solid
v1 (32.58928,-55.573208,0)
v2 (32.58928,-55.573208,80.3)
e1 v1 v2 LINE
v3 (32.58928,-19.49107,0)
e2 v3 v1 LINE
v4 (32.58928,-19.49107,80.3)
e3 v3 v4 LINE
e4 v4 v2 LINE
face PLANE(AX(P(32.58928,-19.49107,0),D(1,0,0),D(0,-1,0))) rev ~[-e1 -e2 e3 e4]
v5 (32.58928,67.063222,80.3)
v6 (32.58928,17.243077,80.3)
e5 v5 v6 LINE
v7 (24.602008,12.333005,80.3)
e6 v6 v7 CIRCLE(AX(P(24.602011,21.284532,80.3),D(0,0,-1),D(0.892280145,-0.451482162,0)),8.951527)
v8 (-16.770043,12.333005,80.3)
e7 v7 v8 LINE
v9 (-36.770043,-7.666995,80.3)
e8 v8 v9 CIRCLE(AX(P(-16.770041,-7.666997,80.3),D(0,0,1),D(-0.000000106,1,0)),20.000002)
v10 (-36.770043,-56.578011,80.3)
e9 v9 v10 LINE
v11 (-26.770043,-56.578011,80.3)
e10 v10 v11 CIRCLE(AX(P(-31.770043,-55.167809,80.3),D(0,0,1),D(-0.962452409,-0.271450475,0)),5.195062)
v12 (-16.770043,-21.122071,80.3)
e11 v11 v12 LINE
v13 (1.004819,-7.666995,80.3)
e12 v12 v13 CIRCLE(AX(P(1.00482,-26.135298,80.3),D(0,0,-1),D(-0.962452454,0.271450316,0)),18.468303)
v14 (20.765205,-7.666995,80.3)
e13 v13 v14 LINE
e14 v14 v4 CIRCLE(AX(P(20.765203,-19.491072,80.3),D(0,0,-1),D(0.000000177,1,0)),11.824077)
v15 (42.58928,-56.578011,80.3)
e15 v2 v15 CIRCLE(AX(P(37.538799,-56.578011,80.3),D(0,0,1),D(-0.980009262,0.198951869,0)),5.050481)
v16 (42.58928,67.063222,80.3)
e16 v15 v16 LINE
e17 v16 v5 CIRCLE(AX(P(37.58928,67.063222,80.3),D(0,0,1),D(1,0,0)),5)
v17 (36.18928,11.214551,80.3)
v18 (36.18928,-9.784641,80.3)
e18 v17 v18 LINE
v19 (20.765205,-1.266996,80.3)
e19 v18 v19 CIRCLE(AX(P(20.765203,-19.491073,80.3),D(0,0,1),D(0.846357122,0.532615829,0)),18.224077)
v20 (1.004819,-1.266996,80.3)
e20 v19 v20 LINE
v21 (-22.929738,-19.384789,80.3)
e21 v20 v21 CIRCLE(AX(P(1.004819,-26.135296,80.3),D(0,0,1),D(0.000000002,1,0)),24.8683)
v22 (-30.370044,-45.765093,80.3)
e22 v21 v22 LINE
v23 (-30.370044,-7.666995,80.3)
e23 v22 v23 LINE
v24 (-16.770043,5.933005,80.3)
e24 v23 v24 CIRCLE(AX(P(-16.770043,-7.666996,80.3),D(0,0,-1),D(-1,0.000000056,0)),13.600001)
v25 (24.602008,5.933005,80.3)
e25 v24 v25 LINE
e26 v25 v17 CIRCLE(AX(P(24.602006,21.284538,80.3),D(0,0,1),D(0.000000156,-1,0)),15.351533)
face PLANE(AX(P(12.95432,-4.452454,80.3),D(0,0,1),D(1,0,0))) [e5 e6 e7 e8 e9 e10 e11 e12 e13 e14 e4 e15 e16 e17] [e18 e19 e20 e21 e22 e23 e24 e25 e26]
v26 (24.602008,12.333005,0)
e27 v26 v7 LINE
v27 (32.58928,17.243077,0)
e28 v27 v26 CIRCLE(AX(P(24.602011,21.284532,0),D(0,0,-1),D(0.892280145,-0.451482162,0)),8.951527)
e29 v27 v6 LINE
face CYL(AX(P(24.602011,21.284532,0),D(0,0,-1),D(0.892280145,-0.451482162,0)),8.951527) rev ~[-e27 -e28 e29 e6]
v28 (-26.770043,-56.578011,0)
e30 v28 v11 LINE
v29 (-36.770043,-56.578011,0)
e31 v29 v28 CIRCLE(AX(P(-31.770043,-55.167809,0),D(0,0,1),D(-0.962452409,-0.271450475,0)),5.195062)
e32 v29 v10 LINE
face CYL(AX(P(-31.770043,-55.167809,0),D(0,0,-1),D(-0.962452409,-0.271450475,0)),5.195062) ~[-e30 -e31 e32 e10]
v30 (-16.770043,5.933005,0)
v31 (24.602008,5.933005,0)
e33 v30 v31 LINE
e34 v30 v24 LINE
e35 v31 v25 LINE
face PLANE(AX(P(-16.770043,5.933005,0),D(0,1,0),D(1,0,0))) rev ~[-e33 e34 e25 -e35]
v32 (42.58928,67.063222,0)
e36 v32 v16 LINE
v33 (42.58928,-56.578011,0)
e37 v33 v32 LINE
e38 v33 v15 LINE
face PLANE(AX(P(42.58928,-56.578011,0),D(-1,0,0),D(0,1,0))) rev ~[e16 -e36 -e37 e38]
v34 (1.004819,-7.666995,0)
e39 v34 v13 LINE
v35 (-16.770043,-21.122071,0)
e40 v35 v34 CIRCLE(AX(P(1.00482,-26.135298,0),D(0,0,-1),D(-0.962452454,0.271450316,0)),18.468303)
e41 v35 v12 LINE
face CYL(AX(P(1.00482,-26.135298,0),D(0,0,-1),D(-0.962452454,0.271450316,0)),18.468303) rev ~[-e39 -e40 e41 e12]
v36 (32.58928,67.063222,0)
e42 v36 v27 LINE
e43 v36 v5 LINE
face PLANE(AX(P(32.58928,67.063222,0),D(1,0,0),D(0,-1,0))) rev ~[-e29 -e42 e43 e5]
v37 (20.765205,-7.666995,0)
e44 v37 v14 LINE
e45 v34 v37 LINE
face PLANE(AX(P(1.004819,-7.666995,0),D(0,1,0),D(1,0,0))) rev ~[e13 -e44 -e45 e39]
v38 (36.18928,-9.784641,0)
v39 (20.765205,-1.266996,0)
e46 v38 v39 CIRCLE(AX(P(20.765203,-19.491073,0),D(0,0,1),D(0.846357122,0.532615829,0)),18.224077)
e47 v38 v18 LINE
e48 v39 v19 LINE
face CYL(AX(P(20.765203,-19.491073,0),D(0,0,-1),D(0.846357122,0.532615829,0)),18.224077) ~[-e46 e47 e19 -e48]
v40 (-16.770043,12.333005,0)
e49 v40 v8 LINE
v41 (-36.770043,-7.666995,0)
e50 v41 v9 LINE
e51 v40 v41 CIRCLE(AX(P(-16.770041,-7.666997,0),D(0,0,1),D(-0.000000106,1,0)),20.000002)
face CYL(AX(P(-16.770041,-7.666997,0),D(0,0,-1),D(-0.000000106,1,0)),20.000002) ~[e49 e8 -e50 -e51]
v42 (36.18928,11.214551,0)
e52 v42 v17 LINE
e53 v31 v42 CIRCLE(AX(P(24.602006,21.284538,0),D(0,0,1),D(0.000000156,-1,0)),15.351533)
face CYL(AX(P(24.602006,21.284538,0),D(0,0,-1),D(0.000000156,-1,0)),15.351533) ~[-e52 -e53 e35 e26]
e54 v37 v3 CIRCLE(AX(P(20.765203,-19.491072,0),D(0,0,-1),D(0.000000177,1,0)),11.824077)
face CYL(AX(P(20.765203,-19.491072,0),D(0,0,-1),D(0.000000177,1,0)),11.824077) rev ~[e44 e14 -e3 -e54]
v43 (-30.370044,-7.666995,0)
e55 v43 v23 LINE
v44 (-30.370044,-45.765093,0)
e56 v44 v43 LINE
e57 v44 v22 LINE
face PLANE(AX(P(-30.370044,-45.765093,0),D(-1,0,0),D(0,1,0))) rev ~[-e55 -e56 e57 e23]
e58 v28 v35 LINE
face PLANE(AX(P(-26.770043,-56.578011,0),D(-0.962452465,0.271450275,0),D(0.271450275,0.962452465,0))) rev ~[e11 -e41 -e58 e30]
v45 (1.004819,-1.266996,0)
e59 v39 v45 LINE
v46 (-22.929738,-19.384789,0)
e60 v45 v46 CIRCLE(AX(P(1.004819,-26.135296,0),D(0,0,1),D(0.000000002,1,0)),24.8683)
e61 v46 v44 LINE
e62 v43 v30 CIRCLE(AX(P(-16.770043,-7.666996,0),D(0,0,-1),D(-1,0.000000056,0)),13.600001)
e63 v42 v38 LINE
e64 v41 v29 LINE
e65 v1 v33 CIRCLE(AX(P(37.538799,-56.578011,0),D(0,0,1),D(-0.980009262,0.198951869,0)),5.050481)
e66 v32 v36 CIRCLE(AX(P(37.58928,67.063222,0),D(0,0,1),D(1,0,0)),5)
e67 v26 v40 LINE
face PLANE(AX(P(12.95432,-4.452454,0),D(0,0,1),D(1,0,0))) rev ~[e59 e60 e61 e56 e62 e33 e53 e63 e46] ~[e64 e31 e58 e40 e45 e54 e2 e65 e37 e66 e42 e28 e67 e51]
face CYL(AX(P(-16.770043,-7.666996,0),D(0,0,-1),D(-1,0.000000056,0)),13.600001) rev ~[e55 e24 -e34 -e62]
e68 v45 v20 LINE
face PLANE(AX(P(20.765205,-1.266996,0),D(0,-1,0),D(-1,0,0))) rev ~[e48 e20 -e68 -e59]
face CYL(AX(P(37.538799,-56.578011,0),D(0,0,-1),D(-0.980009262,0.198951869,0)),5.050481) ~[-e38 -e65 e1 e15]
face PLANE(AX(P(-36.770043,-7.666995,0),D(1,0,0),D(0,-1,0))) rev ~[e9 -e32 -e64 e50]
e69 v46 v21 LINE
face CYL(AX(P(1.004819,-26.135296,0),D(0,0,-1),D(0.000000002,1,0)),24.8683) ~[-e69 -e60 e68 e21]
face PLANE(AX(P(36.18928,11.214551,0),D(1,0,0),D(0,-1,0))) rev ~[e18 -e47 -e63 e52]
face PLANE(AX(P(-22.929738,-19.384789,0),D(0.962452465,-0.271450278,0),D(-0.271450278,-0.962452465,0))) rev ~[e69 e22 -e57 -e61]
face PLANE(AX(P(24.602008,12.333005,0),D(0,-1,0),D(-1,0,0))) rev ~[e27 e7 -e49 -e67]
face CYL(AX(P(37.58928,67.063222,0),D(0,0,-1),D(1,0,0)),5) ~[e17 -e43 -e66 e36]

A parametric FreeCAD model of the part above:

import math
import FreeCAD as App
import Part
import Sketcher

V = App.Vector

doc = App.newDocument("Part")
body = doc.addObject("PartDesign::Body", "Body")

sketch1 = doc.addObject("Sketcher::SketchObject", "Sketch")
body.addObject(sketch1)
sketch1.AttachmentSupport = (doc.XY_Plane, [""])
sketch1.MapMode = "FlatFace"
sketch1.addGeometry([
    Part.LineSegment(V(-36.770043, -7.666995, 0), V(-36.770043, -56.578011, 0)),
    Part.ArcOfCircle(Part.Circle(V(-31.770043, -55.167809, 0), V(0, 0, 1), 5.195062), math.radians(-164.249403), math.radians(-15.750597)),
    Part.LineSegment(V(-26.770043, -56.578011, 0), V(-16.770043, -21.122071, 0)),
    Part.ArcOfCircle(Part.Circle(V(1.00482, -26.135298, 0), V(0, 0, 1), 18.468303), math.radians(90.000003), math.radians(164.249413)),
    Part.LineSegment(V(1.004819, -7.666995, 0), V(20.765205, -7.666995, 0)),
    Part.ArcOfCircle(Part.Circle(V(20.765203, -19.491072, 0), V(0, 0, 1), 11.824077), math.radians(0.00001), math.radians(89.99999)),
    Part.LineSegment(V(32.58928, -19.49107, 0), V(32.58928, -55.573208, 0)),
    Part.ArcOfCircle(Part.Circle(V(37.538799, -56.578011, 0), V(0, 0, 1), 5.050481), math.radians(168.524326), math.radians(359.999997)),
    Part.LineSegment(V(42.58928, -56.578011, 0), V(42.58928, 67.063222, 0)),
    Part.ArcOfCircle(Part.Circle(V(37.58928, 67.063222, 0), V(0, 0, 1), 5), math.radians(0), math.radians(180)),
    Part.LineSegment(V(32.58928, 67.063222, 0), V(32.58928, 17.243077, 0)),
    Part.ArcOfCircle(Part.Circle(V(24.602011, 21.284532, 0), V(0, 0, 1), 8.951527), math.radians(-90.000016), math.radians(-26.838818)),
    Part.LineSegment(V(24.602008, 12.333005, 0), V(-16.770043, 12.333005, 0)),
    Part.ArcOfCircle(Part.Circle(V(-16.770041, -7.666997, 0), V(0, 0, 1), 20.000002), math.radians(90.000006), math.radians(179.999994)),
    Part.ArcOfCircle(Part.Circle(V(-16.770043, -7.666996, 0), V(0, 0, 1), 13.600001), math.radians(89.999999), math.radians(179.999997)),
    Part.LineSegment(V(-16.770043, 5.933005, 0), V(24.602008, 5.933005, 0)),
    Part.ArcOfCircle(Part.Circle(V(24.602006, 21.284538, 0), V(0, 0, 1), 15.351533), math.radians(-89.999991), math.radians(-40.99246)),
    Part.LineSegment(V(36.18928, 11.214551, 0), V(36.18928, -9.784641, 0)),
    Part.ArcOfCircle(Part.Circle(V(20.765203, -19.491073, 0), V(0, 0, 1), 18.224077), math.radians(32.182367), math.radians(89.999993)),
    Part.LineSegment(V(20.765205, -1.266996, 0), V(1.004819, -1.266996, 0)),
    Part.ArcOfCircle(Part.Circle(V(1.004819, -26.135296, 0), V(0, 0, 1), 24.8683), math.radians(90), math.radians(164.249414)),
    Part.LineSegment(V(-22.929738, -19.384789, 0), V(-30.370044, -45.765093, 0)),
    Part.LineSegment(V(-30.370044, -45.765093, 0), V(-30.370044, -7.666995, 0)),
], False)
sketch1.addConstraint([
    Sketcher.Constraint("Coincident", 0, 2, 1, 1),
    Sketcher.Constraint("Coincident", 1, 2, 2, 1),
    Sketcher.Constraint("Coincident", 2, 2, 3, 2),
    Sketcher.Constraint("Coincident", 3, 1, 4, 1),
    Sketcher.Constraint("Coincident", 4, 2, 5, 2),
    Sketcher.Constraint("Coincident", 5, 1, 6, 1),
    Sketcher.Constraint("Coincident", 6, 2, 7, 1),
    Sketcher.Constraint("Coincident", 7, 2, 8, 1),
    Sketcher.Constraint("Coincident", 8, 2, 9, 1),
    Sketcher.Constraint("Coincident", 9, 2, 10, 1),
    Sketcher.Constraint("Coincident", 10, 2, 11, 2),
    Sketcher.Constraint("Coincident", 11, 1, 12, 1),
    Sketcher.Constraint("Coincident", 12, 2, 13, 1),
    Sketcher.Constraint("Coincident", 13, 2, 0, 1),
    Sketcher.Constraint("Coincident", 14, 1, 15, 1),
    Sketcher.Constraint("Coincident", 15, 2, 16, 1),
    Sketcher.Constraint("Coincident", 16, 2, 17, 1),
    Sketcher.Constraint("Coincident", 17, 2, 18, 1),
    Sketcher.Constraint("Coincident", 18, 2, 19, 1),
    Sketcher.Constraint("Coincident", 19, 2, 20, 1),
    Sketcher.Constraint("Coincident", 20, 2, 21, 1),
    Sketcher.Constraint("Coincident", 21, 2, 22, 1),
    Sketcher.Constraint("Coincident", 22, 2, 14, 2),
    Sketcher.Constraint("Vertical", 0),
    Sketcher.Constraint("Horizontal", 4),
    Sketcher.Constraint("Vertical", 6),
    Sketcher.Constraint("Vertical", 8),
    Sketcher.Constraint("Vertical", 10),
    Sketcher.Constraint("Horizontal", 12),
    Sketcher.Constraint("Horizontal", 15),
    Sketcher.Constraint("Vertical", 17),
    Sketcher.Constraint("Horizontal", 19),
    Sketcher.Constraint("Vertical", 22),
    Sketcher.Constraint("Coincident", 14, 3, 13, 3),
    Sketcher.Constraint("Coincident", 16, 3, 11, 3),
    Sketcher.Constraint("Coincident", 18, 3, 5, 3),
    Sketcher.Constraint("Coincident", 20, 3, 3, 3),
    Sketcher.Constraint("Radius", 9, 5.0),
    Sketcher.Constraint("Radius", 14, 13.600001),
    Sketcher.Constraint("DistanceX", 1, 3, 14, 3, 15.0),
    Sketcher.Constraint("DistanceX", 0, 2, 1, 3, 5.0),
    Sketcher.Constraint("DistanceX", 1, 3, 1, 2, 5.0),
    Sketcher.Constraint("DistanceX", 1, 2, 2, 2, 10.0),
    Sketcher.Constraint("DistanceX", 6, 2, 7, 2, 10.0),
    Sketcher.Constraint("DistanceY", 4, 2, 11, 1, 20.0),
    Sketcher.Constraint("DistanceX", 13, 2, 12, 2, 20.0),
    Sketcher.Constraint("DistanceY", 13, 2, 12, 2, 20.0),
    Sketcher.Constraint("DistanceX", 13, 2, 14, 1, 20.0),
    Sketcher.Constraint("Radius", 20, 24.8683),
    Sketcher.Constraint("DistanceX", 10, 2, 16, 2, 3.6),
    Sketcher.Constraint("DistanceY", 4, 2, 18, 2, 6.399999),
    Sketcher.Constraint("Radius", 7, 5.050481),
    Sketcher.Constraint("Radius", 1, 5.195062),
    Sketcher.Constraint("Radius", 5, 11.824077),
    Sketcher.Constraint("Radius", 11, 8.951527),
    Sketcher.Constraint("DistanceX", 12, 2, 12, 1, 41.372051),
    Sketcher.Constraint("DistanceX", 15, 1, 15, 2, 41.372051),
    Sketcher.Constraint("DistanceX", -1, 1, 7, 3, 37.538799),
    Sketcher.Constraint("DistanceY", 7, 3, 1, 3, 1.410202),
    Sketcher.Constraint("Distance", 2, 36.83916),
    Sketcher.Constraint("Distance", 21, 27.409462),
    Sketcher.Constraint("DistanceX", 4, 1, 4, 2, 19.760386),
    Sketcher.Constraint("DistanceX", 19, 2, 19, 1, 19.760386),
    Sketcher.Constraint("DistanceY", 0, 2, 0, 1, 48.911016),
    Sketcher.Constraint("DistanceY", 6, 2, 6, 1, 36.082138),
    Sketcher.Constraint("DistanceY", 8, 1, 8, 2, 123.641233),
    Sketcher.Constraint("DistanceY", 10, 2, 10, 1, 49.820145),
    Sketcher.Constraint("DistanceY", 17, 2, 17, 1, 20.999192),
    Sketcher.Constraint("DistanceY", 22, 1, 22, 2, 38.098098),
    Sketcher.Constraint("DistanceY", 1, 3, -1, 1, 55.167809),
    Sketcher.Constraint("DistanceX", -1, 1, 3, 3, 1.00482),
    Sketcher.Constraint("DistanceY", -1, 1, 9, 3, 67.063222),
    Sketcher.Constraint("DistanceX", -1, 1, 3, 1, 1.004819),
    Sketcher.Constraint("DistanceY", 7, 2, -1, 1, 56.578011),
    Sketcher.Constraint("DistanceX", -1, 1, 19, 2, 1.004819),
    Sketcher.Constraint("DistanceX", 20, 2, -1, 1, 22.929738),
])
pad1 = doc.addObject("PartDesign::Pad", "Pad")
body.addObject(pad1)
pad1.Profile = sketch1
pad1.Length = 80.3

doc.recompute()
